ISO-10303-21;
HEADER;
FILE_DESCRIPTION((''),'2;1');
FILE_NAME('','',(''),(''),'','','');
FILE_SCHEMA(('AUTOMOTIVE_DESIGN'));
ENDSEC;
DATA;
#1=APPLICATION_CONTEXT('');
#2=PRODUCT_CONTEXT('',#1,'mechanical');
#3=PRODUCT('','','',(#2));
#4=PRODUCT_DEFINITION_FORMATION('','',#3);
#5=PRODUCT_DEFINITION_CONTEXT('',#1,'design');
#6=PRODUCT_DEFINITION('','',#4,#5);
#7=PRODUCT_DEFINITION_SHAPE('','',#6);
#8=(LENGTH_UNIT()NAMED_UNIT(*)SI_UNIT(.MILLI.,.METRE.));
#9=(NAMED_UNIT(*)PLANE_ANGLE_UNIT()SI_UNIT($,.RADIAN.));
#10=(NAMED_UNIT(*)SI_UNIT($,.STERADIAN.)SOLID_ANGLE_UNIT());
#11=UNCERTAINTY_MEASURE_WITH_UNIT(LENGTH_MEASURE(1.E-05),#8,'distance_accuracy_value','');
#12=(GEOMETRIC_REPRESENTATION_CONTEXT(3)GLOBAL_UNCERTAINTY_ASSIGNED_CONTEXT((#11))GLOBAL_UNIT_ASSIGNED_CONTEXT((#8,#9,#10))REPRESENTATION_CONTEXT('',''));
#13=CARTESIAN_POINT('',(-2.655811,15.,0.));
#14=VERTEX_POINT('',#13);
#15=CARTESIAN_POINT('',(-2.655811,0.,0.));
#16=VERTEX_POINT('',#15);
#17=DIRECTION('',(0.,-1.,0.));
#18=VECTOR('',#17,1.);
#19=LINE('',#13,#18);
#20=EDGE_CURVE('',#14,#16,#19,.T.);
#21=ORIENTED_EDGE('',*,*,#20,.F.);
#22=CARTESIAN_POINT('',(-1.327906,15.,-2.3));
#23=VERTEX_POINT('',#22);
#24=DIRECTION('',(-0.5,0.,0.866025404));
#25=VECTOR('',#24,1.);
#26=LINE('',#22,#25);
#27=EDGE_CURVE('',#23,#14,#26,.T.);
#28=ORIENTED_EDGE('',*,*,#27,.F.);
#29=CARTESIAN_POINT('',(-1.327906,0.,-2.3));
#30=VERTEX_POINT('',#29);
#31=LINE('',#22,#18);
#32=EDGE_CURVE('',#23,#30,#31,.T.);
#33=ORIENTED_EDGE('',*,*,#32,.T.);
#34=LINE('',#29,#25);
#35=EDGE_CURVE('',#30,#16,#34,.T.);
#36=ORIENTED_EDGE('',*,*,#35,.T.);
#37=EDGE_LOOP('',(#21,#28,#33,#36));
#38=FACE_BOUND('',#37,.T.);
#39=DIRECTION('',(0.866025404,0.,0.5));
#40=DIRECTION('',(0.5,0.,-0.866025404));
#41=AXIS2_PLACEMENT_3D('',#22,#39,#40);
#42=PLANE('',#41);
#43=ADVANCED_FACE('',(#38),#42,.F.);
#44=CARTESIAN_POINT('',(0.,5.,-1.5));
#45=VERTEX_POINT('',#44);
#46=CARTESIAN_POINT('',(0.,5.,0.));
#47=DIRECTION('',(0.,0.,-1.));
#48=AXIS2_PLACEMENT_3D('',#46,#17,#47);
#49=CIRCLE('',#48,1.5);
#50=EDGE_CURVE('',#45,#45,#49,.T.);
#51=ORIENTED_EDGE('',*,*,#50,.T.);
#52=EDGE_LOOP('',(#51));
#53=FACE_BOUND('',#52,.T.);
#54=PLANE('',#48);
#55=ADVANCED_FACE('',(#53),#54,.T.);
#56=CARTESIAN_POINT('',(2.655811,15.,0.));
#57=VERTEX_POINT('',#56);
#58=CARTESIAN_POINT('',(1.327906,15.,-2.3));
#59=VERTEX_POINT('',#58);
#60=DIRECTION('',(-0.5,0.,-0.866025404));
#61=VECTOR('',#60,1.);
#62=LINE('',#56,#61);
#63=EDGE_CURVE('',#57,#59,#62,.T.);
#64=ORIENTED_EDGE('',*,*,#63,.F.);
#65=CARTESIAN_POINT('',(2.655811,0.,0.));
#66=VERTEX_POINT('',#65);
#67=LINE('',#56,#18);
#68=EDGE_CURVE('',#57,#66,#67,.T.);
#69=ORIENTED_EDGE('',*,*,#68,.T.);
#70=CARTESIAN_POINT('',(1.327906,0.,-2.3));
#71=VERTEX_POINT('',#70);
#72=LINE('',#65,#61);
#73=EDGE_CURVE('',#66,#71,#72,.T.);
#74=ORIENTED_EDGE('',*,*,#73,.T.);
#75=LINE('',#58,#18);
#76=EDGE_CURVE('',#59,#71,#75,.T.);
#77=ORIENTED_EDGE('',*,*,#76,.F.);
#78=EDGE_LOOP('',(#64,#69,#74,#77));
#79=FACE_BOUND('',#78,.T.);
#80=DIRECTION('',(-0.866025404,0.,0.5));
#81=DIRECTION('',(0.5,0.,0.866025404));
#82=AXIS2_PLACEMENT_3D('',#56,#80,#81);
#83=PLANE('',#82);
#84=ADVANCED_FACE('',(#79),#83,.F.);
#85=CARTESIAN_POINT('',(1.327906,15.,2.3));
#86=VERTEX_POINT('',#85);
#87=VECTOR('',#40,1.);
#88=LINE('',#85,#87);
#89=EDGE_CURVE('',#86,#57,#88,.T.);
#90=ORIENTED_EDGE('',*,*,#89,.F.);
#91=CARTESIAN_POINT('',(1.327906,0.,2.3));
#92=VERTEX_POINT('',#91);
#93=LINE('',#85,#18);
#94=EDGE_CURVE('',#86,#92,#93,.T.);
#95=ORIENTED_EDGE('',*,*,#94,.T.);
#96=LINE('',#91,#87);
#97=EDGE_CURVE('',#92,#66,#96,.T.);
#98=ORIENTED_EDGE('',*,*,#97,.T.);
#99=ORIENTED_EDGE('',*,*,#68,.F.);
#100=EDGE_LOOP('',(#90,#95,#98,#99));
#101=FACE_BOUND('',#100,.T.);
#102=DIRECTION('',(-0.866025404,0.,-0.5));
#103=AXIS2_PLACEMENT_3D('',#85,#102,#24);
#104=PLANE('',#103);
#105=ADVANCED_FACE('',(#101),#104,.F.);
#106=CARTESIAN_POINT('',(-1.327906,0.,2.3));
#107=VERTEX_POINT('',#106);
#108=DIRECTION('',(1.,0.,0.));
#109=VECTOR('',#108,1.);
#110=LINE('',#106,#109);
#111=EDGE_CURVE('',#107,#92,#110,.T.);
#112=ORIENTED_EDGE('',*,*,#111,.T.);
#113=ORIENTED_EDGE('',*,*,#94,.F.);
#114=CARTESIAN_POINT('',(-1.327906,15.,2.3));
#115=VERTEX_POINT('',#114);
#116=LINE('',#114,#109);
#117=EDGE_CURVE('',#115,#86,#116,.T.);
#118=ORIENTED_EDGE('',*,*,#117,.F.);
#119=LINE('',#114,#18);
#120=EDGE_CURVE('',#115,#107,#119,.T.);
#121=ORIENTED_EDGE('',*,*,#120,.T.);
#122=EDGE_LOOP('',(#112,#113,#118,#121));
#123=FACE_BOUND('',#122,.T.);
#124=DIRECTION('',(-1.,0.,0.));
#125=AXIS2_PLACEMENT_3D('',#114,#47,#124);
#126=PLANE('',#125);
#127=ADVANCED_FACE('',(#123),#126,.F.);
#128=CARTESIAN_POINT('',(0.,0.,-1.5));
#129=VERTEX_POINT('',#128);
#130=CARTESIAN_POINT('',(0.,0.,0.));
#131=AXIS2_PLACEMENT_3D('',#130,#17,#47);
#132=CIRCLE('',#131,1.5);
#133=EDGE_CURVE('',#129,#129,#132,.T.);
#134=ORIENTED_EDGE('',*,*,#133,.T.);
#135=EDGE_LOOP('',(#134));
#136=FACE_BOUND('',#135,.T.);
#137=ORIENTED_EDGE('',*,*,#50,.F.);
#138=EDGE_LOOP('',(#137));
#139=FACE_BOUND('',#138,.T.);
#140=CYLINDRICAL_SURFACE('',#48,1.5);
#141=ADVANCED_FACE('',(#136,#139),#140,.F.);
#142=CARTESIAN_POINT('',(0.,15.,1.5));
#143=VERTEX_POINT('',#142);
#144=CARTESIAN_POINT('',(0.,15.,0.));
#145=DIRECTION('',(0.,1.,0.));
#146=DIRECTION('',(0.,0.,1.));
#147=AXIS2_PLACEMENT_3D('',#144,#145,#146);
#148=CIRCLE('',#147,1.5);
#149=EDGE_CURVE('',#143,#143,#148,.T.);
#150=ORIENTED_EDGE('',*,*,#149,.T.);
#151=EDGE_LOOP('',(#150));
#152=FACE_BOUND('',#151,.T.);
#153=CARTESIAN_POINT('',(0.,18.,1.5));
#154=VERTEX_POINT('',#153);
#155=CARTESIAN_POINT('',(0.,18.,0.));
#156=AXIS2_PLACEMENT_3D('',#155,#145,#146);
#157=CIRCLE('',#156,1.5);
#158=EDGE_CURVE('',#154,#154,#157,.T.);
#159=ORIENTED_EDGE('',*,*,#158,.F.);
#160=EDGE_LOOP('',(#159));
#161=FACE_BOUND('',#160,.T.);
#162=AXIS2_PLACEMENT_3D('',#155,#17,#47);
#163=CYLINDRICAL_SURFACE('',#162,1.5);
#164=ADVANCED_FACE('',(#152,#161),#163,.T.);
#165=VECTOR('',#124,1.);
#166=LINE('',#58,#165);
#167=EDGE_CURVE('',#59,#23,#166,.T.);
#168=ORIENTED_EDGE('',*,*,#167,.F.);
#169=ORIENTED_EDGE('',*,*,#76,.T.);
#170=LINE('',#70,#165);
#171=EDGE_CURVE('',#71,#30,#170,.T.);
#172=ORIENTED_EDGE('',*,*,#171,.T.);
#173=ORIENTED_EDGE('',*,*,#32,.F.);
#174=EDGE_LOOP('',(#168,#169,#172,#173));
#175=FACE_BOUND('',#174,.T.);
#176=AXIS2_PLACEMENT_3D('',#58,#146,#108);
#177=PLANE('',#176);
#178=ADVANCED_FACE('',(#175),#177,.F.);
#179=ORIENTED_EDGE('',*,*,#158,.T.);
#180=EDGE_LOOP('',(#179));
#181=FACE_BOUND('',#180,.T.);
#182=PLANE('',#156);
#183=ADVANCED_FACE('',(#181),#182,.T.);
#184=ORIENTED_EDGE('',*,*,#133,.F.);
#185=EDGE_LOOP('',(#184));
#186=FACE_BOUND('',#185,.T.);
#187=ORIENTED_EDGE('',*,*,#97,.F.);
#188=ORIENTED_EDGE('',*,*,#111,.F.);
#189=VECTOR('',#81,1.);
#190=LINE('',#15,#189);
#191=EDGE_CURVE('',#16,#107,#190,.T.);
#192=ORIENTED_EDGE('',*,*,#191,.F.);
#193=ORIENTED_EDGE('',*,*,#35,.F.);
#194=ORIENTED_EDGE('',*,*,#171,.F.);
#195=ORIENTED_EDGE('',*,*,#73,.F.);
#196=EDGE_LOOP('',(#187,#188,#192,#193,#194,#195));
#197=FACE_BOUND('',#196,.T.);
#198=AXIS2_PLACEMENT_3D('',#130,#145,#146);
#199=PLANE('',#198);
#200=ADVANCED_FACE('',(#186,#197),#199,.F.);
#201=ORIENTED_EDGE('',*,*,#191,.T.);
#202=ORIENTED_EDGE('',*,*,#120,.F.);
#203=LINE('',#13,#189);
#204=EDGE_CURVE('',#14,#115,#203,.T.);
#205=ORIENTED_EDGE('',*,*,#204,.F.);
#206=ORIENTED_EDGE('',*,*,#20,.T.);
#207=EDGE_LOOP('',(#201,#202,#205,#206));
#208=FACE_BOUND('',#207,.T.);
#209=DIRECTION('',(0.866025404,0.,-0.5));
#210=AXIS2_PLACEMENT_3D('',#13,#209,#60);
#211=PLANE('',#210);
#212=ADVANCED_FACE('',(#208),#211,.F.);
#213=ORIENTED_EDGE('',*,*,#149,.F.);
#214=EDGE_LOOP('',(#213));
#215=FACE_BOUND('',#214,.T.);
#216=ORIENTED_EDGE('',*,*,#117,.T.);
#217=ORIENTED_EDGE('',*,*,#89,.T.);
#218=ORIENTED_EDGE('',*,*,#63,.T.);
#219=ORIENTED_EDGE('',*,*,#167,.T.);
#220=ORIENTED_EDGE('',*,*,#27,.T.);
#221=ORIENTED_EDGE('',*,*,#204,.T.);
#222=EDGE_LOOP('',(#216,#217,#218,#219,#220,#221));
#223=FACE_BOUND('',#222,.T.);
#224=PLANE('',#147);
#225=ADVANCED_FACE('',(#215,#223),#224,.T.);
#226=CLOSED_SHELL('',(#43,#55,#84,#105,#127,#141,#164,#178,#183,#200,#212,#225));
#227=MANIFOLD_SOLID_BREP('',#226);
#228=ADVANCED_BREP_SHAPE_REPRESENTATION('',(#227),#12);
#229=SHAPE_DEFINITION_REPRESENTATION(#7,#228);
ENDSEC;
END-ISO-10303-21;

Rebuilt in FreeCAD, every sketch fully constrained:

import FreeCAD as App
import Part
import Sketcher
from FreeCAD import Vector
Q = App.Units.Quantity

doc = App.newDocument("Part")
body = doc.addObject("PartDesign::Body", "Body")

sketch1 = body.newObject("Sketcher::SketchObject", "Sketch")
sketch1.AttachmentSupport = (doc.getObject("XZ_Plane"), [""])
sketch1.MapMode = "FlatFace"
sketch1.addGeometry([
    Part.LineSegment(Vector(2.655811, 0, 0), Vector(1.327906, -2.3, 0)),
    Part.LineSegment(Vector(1.327906, -2.3, 0), Vector(-1.327906, -2.3, 0)),
    Part.LineSegment(Vector(-1.327906, -2.3, 0), Vector(-2.655811, 0, 0)),
    Part.LineSegment(Vector(-2.655811, 0, 0), Vector(-1.327906, 2.3, 0)),
    Part.LineSegment(Vector(-1.327906, 2.3, 0), Vector(1.327906, 2.3, 0)),
    Part.LineSegment(Vector(1.327906, 2.3, 0), Vector(2.655811, 0, 0)),
], False)
sketch1.addConstraint([
    Sketcher.Constraint("Coincident", 0, 2, 1, 1),
    Sketcher.Constraint("Coincident", 1, 2, 2, 1),
    Sketcher.Constraint("Coincident", 2, 2, 3, 1),
    Sketcher.Constraint("Coincident", 3, 2, 4, 1),
    Sketcher.Constraint("Coincident", 4, 2, 5, 1),
    Sketcher.Constraint("Coincident", 5, 2, 0, 1),
    Sketcher.Constraint("Horizontal", 1),
    Sketcher.Constraint("Horizontal", 4),
    Sketcher.Constraint("Symmetric", 0, 2, 3, 2, -1, 1),
    Sketcher.Constraint("Symmetric", 2, 2, 5, 2, -1, 1),
    Sketcher.Constraint("PointOnObject", 2, 2, -1),
    Sketcher.Constraint("Parallel", 2, 5),
    Sketcher.Constraint("Vertical", 1, 2, 3, 2),
    Sketcher.Constraint("Angle", 0, Q("-120 deg")),
    Sketcher.Constraint("DistanceY", 0, 2, -1, 1, 2.3),
    Sketcher.Constraint("DistanceX", 1, 2, 1, 1, 2.655811),
])
pad1 = body.newObject("PartDesign::Pad", "Pad")
pad1.Profile = sketch1
pad1.Length = 15
pad1.Reversed = True

sketch2 = body.newObject("Sketcher::SketchObject", "Sketch001")
sketch2.AttachmentSupport = (doc.getObject("XZ_Plane"), [""])
sketch2.MapMode = "FlatFace"
sketch2.AttachmentOffset = App.Placement(Vector(0, 0, -15), App.Rotation())
sketch2.addGeometry(Part.Circle(Vector(0, 0, 0), Vector(0, 0, 1), 1.5), False)
sketch2.addConstraint([
    Sketcher.Constraint("Coincident", 0, 3, -1, 1),
    Sketcher.Constraint("Diameter", 0, 3.0),
])
pad2 = body.newObject("PartDesign::Pad", "Pad001")
pad2.Profile = sketch2
pad2.Length = 3
pad2.Reversed = True

sketch3 = body.newObject("Sketcher::SketchObject", "Sketch002")
sketch3.AttachmentSupport = (doc.getObject("XZ_Plane"), [""])
sketch3.MapMode = "FlatFace"
sketch3.addGeometry(Part.Circle(Vector(0, 0, 0), Vector(0, 0, 1), 1.5), False)
sketch3.addConstraint([
    Sketcher.Constraint("Coincident", 0, 3, -1, 1),
    Sketcher.Constraint("Diameter", 0, 3.0),
])
pocket1 = body.newObject("PartDesign::Pocket", "Pocket")
pocket1.Profile = sketch3
pocket1.Length = 5

doc.recompute()
